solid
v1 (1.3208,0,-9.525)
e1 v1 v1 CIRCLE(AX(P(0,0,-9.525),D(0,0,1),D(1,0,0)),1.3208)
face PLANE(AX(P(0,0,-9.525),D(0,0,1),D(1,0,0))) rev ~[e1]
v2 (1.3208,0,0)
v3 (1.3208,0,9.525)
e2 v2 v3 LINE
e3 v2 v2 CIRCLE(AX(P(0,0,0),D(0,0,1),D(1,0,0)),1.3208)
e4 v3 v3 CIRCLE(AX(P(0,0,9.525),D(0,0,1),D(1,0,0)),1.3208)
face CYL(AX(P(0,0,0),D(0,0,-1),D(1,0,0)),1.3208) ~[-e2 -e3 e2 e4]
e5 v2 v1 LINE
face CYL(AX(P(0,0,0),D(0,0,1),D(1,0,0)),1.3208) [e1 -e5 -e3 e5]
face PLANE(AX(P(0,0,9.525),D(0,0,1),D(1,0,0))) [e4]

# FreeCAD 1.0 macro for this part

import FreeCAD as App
import Part
import Sketcher
from FreeCAD import Vector
Q = App.Units.Quantity

doc = App.newDocument("Part")
body = doc.addObject("PartDesign::Body", "Body")

sketch1 = doc.addObject("Sketcher::SketchObject", "Sketch")
body.addObject(sketch1)
sketch1.AttachmentSupport = (doc.XY_Plane, [""])
sketch1.MapMode = "FlatFace"
sketch1.addGeometry(Part.Circle(Vector(0, 0, 0), Vector(0, 0, 1), 1.3), False)
sketch1.addConstraint([
    Sketcher.Constraint("Coincident", 0, 3, -1, 1),
    Sketcher.Constraint("Diameter", 0, Q("0.104 in")),
])
pad1 = doc.addObject("PartDesign::Pad", "Pad")
body.addObject(pad1)
pad1.Profile = sketch1
pad1.Length = Q("0.75 in")
pad1.Midplane = True

doc.recompute()
